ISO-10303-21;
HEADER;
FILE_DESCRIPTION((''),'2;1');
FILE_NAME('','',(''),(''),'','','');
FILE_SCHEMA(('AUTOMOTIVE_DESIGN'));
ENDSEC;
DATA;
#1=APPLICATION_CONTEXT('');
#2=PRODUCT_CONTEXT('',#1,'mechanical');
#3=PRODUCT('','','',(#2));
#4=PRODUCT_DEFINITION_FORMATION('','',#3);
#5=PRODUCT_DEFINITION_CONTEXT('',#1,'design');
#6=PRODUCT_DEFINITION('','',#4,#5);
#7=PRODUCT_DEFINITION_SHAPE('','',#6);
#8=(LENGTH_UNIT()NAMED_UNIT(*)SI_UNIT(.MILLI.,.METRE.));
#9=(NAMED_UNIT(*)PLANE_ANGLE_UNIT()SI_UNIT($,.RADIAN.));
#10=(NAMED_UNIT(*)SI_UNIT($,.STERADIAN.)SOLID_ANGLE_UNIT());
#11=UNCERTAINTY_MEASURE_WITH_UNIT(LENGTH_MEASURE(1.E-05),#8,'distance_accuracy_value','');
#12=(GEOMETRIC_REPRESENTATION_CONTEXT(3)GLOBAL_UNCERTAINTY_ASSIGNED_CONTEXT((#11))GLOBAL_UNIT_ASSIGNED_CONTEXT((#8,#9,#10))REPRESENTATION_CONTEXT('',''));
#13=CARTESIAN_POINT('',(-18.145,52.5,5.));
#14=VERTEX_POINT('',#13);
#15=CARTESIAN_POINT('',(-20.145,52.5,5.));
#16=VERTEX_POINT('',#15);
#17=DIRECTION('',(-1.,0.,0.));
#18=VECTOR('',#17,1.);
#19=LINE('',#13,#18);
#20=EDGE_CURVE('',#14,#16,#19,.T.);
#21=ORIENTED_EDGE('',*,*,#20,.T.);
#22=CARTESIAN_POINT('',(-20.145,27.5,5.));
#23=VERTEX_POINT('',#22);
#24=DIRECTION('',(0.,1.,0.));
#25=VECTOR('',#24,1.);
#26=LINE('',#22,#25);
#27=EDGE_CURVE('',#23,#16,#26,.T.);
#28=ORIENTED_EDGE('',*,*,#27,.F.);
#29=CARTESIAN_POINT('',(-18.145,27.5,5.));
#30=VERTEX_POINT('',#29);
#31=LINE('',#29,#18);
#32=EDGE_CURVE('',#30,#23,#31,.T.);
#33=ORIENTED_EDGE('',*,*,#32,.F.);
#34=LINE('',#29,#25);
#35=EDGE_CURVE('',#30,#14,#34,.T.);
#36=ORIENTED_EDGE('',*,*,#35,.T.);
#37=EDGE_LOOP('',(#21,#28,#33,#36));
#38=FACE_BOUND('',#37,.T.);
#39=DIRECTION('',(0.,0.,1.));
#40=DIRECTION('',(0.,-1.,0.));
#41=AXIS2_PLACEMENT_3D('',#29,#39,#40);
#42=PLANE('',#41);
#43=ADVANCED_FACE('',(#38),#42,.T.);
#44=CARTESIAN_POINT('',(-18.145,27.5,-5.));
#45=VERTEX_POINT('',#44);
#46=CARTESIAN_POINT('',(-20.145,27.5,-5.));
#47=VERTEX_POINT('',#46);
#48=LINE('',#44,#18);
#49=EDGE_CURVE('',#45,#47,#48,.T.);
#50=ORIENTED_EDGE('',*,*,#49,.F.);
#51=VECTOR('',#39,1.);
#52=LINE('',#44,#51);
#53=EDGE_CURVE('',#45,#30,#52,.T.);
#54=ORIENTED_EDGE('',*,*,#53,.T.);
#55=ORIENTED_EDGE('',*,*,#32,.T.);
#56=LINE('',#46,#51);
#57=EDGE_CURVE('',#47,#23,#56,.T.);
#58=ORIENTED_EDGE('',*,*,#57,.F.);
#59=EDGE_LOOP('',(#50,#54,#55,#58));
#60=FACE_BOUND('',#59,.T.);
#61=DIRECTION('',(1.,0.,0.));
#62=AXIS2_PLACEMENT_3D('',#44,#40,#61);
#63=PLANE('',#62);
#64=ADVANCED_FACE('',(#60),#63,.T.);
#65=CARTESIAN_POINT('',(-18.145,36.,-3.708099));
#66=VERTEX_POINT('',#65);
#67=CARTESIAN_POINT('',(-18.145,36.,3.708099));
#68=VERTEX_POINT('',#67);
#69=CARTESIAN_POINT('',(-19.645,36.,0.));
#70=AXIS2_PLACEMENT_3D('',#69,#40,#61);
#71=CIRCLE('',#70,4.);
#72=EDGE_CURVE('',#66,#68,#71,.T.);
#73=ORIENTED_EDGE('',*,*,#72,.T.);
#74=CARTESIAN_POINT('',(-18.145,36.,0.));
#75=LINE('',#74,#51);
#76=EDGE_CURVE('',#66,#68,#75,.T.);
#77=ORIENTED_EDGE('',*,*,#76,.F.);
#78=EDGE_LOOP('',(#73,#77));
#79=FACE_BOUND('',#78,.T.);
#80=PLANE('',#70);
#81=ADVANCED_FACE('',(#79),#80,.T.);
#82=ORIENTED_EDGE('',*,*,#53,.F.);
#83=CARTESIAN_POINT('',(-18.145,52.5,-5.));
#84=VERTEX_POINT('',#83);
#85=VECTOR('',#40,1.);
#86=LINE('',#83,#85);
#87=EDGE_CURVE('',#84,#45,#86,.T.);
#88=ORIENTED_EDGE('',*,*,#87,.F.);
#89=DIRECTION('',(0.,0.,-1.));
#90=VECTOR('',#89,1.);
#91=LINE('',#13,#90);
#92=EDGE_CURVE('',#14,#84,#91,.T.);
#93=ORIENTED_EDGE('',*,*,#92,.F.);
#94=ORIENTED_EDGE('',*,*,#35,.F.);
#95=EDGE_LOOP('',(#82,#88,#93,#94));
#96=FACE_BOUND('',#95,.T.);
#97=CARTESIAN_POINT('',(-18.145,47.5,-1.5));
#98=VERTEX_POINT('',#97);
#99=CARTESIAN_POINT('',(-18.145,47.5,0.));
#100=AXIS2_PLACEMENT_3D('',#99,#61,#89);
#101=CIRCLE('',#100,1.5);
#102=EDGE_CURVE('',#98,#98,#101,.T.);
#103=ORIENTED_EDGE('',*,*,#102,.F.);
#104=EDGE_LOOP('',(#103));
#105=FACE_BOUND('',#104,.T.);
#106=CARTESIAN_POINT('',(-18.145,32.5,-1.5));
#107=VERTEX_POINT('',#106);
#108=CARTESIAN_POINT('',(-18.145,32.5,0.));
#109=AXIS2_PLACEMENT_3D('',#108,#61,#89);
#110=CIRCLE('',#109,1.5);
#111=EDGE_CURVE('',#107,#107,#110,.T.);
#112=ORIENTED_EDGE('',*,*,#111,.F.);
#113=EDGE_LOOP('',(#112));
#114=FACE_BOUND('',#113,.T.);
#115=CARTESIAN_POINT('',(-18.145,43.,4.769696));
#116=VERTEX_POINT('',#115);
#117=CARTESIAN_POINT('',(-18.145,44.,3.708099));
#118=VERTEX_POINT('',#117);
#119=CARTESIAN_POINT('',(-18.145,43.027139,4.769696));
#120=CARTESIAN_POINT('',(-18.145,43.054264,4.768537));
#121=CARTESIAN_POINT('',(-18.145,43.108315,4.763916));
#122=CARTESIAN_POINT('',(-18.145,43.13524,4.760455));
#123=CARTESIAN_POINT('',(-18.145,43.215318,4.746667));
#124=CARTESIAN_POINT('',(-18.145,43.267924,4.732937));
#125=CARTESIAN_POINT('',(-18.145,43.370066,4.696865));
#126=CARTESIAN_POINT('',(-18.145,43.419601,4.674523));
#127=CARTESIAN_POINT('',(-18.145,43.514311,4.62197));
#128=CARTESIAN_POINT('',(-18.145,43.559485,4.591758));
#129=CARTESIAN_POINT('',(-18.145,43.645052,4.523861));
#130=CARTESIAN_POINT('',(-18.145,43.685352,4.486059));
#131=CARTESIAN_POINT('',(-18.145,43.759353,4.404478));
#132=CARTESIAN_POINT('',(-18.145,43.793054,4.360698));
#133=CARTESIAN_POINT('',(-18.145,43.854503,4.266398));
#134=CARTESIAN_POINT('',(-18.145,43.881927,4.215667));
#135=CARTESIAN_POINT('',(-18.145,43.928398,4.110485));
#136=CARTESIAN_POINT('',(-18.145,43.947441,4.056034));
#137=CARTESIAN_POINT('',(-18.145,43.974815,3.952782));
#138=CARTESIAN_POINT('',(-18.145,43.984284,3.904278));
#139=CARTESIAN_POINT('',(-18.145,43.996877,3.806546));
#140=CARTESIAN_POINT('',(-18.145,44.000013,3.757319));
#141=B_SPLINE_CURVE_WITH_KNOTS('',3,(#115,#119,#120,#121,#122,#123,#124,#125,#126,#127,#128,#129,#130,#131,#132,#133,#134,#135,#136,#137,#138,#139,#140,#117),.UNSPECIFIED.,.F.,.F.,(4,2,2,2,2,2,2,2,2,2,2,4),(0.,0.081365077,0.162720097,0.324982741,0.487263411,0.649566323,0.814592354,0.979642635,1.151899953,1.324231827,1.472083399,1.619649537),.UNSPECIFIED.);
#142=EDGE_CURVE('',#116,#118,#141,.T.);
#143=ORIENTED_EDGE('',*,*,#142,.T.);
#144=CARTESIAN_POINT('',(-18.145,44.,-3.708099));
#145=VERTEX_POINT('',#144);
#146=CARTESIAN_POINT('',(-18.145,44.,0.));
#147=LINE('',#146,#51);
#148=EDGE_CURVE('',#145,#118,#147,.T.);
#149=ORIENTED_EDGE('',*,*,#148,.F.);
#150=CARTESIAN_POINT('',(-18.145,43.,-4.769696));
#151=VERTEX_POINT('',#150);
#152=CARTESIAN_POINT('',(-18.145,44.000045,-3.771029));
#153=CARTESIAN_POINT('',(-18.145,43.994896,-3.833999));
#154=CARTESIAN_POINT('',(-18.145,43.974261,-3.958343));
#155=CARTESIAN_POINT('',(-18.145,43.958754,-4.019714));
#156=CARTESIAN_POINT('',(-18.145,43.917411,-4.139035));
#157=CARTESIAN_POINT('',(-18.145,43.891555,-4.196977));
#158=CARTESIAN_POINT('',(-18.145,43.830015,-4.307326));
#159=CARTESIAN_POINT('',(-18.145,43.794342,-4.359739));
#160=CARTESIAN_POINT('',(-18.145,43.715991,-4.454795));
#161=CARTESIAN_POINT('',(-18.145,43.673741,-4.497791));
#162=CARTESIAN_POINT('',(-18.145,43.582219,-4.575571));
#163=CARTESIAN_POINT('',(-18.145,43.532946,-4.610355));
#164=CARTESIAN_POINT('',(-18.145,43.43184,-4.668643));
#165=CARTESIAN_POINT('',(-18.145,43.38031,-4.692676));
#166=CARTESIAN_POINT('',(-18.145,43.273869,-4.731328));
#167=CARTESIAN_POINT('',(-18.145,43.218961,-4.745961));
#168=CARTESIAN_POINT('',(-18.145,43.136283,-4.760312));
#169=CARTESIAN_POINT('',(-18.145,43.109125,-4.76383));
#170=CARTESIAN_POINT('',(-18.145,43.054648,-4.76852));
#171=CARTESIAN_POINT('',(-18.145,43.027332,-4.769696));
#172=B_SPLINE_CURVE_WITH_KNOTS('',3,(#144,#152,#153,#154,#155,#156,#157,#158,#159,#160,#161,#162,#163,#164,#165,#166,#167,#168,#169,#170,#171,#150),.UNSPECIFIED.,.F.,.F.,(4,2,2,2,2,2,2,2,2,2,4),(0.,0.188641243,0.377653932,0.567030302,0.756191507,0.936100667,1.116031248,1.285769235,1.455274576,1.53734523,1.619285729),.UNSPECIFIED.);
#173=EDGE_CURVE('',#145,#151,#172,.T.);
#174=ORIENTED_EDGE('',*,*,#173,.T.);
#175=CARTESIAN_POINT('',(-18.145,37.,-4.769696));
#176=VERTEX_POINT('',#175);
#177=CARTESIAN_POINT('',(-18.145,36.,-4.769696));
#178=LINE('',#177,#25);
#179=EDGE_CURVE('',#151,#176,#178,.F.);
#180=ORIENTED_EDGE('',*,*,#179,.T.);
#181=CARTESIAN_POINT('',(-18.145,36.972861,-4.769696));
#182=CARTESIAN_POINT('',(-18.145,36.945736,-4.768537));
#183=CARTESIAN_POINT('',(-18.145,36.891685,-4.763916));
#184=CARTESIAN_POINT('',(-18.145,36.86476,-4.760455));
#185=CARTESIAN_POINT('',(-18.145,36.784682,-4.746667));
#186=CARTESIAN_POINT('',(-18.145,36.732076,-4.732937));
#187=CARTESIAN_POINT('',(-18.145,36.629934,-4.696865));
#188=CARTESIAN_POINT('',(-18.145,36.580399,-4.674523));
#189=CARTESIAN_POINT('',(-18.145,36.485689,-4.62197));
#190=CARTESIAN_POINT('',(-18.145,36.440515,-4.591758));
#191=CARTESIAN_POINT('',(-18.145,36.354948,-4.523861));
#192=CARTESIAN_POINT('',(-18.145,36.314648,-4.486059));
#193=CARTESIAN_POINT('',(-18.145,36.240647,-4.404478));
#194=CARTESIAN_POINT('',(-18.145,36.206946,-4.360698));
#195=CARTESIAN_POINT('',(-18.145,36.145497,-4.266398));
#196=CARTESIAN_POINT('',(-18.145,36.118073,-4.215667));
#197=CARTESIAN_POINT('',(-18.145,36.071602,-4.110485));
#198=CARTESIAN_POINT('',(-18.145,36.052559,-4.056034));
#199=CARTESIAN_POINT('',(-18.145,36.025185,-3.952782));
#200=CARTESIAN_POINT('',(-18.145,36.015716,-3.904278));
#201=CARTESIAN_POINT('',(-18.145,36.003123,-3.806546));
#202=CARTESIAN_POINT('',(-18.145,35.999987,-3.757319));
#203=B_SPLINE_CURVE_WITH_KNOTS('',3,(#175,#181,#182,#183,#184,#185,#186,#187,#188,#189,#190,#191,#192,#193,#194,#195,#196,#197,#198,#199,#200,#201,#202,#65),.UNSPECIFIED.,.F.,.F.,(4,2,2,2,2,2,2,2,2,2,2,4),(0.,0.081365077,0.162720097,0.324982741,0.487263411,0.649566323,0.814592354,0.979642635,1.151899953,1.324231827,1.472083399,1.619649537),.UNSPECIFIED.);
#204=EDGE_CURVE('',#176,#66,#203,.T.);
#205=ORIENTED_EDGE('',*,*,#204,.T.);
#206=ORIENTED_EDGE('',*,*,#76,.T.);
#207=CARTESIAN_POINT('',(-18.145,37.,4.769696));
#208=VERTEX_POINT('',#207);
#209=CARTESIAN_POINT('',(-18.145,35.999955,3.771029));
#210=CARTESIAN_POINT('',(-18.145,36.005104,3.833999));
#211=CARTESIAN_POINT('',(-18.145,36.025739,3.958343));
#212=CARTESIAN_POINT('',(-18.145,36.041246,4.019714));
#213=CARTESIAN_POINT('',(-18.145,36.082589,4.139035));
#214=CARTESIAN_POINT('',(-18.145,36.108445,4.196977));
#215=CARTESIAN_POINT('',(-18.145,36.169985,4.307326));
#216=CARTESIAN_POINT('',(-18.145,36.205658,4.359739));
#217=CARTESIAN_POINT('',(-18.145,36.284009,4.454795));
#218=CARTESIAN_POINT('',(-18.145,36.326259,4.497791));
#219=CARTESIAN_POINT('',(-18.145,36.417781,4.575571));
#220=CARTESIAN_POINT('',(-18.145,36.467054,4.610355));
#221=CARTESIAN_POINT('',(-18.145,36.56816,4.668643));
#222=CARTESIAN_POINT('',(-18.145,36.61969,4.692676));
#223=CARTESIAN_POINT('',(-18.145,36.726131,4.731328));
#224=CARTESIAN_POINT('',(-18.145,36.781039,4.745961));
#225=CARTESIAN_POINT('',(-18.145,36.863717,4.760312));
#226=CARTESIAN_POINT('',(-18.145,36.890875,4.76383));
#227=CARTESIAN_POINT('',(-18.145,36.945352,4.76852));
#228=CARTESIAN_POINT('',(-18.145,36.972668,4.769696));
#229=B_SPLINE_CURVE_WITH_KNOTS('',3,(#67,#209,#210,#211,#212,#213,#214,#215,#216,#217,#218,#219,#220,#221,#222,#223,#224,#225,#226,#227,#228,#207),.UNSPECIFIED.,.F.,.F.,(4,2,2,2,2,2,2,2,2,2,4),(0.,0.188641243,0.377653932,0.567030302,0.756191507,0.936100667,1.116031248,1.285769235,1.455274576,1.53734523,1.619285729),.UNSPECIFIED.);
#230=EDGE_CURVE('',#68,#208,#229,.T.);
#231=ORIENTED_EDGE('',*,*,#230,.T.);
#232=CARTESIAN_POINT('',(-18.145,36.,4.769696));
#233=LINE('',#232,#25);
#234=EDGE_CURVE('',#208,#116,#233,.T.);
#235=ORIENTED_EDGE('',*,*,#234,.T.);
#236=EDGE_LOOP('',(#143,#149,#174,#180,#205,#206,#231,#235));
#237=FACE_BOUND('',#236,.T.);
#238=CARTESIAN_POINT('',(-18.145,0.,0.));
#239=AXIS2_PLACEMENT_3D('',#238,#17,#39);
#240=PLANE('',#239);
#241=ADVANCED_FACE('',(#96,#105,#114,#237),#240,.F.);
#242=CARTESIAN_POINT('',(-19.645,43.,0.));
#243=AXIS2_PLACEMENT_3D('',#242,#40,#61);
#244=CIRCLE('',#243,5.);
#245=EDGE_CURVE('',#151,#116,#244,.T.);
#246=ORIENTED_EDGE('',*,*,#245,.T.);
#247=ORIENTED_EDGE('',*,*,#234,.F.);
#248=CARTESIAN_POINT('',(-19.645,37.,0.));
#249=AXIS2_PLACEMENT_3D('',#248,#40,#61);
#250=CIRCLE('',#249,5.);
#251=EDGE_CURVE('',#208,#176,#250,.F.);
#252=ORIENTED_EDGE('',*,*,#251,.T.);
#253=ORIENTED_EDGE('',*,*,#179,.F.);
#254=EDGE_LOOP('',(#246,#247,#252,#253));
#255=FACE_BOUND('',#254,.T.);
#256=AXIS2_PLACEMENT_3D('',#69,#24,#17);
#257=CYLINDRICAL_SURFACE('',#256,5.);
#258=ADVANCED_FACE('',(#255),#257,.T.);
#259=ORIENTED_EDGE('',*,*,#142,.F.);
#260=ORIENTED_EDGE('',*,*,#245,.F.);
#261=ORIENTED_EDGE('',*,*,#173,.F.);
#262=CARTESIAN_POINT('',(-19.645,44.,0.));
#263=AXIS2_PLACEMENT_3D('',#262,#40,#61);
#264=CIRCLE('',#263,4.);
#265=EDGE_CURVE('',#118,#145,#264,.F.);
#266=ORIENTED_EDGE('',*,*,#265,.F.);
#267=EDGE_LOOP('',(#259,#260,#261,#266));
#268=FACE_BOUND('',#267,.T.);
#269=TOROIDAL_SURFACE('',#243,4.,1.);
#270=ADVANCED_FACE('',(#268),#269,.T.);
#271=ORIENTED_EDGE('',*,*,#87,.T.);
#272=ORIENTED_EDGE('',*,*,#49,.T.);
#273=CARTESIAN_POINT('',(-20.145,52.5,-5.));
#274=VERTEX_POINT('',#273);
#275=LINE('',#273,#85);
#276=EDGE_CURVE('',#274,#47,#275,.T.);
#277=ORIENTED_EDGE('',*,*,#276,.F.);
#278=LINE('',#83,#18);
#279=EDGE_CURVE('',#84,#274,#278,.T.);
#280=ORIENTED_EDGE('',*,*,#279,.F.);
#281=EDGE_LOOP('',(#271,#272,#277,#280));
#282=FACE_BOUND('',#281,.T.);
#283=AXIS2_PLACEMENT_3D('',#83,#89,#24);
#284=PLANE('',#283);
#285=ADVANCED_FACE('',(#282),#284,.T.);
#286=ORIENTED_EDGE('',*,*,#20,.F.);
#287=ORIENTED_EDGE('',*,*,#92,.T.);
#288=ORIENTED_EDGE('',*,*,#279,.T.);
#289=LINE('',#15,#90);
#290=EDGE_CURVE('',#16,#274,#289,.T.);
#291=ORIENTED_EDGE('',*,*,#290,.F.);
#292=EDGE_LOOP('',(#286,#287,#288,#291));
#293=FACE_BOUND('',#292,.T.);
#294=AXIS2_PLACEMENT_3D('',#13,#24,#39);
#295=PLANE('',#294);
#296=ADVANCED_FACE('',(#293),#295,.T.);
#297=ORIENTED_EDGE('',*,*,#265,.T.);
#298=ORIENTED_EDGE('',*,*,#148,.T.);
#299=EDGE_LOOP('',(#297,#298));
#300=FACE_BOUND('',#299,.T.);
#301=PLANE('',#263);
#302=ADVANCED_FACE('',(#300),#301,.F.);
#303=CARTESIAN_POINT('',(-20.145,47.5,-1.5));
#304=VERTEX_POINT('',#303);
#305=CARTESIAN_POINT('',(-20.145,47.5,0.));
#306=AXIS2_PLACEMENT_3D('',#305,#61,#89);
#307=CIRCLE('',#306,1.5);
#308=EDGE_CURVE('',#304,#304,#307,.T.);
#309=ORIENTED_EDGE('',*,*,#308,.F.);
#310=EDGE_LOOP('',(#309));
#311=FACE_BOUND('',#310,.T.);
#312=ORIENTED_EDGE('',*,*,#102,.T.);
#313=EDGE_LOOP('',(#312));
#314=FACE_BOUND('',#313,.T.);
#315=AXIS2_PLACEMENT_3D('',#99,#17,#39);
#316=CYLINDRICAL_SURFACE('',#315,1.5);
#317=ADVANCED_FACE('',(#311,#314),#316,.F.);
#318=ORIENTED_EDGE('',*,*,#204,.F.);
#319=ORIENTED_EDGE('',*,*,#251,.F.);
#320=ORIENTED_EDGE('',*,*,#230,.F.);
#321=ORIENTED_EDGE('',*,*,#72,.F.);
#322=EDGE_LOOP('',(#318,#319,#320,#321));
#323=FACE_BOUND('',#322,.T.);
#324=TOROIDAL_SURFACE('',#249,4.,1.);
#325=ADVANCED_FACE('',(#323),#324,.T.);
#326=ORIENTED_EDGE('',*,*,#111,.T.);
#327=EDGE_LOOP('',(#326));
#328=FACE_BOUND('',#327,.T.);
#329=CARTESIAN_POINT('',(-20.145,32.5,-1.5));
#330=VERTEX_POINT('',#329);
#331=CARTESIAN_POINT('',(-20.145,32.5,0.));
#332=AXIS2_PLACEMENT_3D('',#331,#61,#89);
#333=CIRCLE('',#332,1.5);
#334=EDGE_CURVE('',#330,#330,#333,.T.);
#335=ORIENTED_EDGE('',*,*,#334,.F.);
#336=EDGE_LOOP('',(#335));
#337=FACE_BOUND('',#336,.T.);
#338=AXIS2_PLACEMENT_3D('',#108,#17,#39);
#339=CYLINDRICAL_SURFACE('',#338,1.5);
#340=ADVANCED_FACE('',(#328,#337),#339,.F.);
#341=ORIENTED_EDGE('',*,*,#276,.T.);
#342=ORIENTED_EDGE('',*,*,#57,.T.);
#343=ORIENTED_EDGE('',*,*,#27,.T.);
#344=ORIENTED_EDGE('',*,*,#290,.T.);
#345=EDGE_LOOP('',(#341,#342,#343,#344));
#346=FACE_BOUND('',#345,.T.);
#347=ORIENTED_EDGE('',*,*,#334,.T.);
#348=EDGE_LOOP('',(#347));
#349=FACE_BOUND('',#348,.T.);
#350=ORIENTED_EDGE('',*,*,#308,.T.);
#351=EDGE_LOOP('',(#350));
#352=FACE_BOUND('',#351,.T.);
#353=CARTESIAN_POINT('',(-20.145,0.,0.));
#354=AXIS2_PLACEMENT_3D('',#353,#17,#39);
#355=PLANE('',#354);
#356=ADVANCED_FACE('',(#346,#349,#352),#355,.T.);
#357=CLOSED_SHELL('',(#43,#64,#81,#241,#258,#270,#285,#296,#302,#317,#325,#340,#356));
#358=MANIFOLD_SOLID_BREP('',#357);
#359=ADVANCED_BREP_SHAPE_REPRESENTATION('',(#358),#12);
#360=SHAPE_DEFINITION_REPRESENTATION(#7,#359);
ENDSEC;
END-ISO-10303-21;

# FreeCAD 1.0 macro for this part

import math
import FreeCAD as App
import Part
import Sketcher
from FreeCAD import Vector


def edges_at(feature, points):
    """Names of the edges that pass closest to the given points."""
    edges = feature.Shape.Edges
    near = lambda p: min(range(len(edges)), key=lambda i: edges[i].distToShape(Part.Vertex(*p))[0])
    return sorted({f"Edge{near(p) + 1}" for p in points})

doc = App.newDocument("Part")
body = doc.addObject("PartDesign::Body", "Body")

# Sketch on YZ plane
sketch1 = body.newObject("Sketcher::SketchObject", "Sketch")
sketch1.AttachmentSupport = (doc.getObject("YZ_Plane"), [""])
sketch1.MapMode = "FlatFace"
sketch1.AttachmentOffset = App.Placement(Vector(0, 0, -20.145), App.Rotation())
sketch1.addGeometry([
    Part.LineSegment(Vector(52.5, 5, 0), Vector(27.5, 5, 0)),  # 0
    Part.LineSegment(Vector(27.5, 5, 0), Vector(27.5, -5, 0)),  # 1
    Part.LineSegment(Vector(27.5, -5, 0), Vector(52.5, -5, 0)),  # 2
    Part.LineSegment(Vector(52.5, -5, 0), Vector(52.5, 5, 0)),  # 3
    Part.Circle(Vector(32.5, 0, 0), Vector(0, 0, 1), 1.5),  # 4
    Part.Circle(Vector(47.5, 0, 0), Vector(0, 0, 1), 1.5),  # 5
], False)
sketch1.addConstraint([
    Sketcher.Constraint("Coincident", 0, 2, 1, 1),
    Sketcher.Constraint("Coincident", 1, 2, 2, 1),
    Sketcher.Constraint("Coincident", 2, 2, 3, 1),
    Sketcher.Constraint("Coincident", 3, 2, 0, 1),
    Sketcher.Constraint("Horizontal", 0),
    Sketcher.Constraint("Vertical", 1),
    Sketcher.Constraint("Horizontal", 2),
    Sketcher.Constraint("Vertical", 3),
    Sketcher.Constraint("Equal", 4, 5),
    Sketcher.Constraint("PointOnObject", 4, 3, -1),
    Sketcher.Constraint("PointOnObject", 5, 3, -1),
    Sketcher.Constraint("Diameter", 4, 3.0),
    Sketcher.Constraint("DistanceX", 0, 2, 0, 1, 25.0),
    Sketcher.Constraint("DistanceY", 1, 2, 1, 1, 10.0),
    Sketcher.Constraint("DistanceY", -1, 1, 0, 2, 5.0),
    Sketcher.Constraint("DistanceX", 4, 3, 5, 3, 15.0),
    Sketcher.Constraint("DistanceX", 0, 2, 4, 3, 5.0),
    Sketcher.Constraint("DistanceX", -1, 1, 4, 3, 32.5),
])
pad1 = body.newObject("PartDesign::Pad", "Pad")
pad1.Profile = sketch1
pad1.Length = 2

# Sketch on XZ plane
sketch2 = body.newObject("Sketcher::SketchObject", "Sketch001")
sketch2.AttachmentSupport = (doc.getObject("XZ_Plane"), [""])
sketch2.MapMode = "FlatFace"
sketch2.AttachmentOffset = App.Placement(Vector(0, 0, -44), App.Rotation())
sketch2.addGeometry([
    Part.LineSegment(Vector(-20, -5, 0), Vector(-20, 5, 0)),
    Part.ArcOfCircle(Part.Circle(Vector(-20, 0, 0), Vector(0, 0, 1), 5), math.radians(-90), math.radians(90)),
], False)
sketch2.addConstraint([
    Sketcher.Constraint("Coincident", 0, 1, 1, 1),
    Sketcher.Constraint("Coincident", 1, 2, 0, 2),
    Sketcher.Constraint("Vertical", 0),
    Sketcher.Constraint("PointOnObject", 1, 3, -1),
    Sketcher.Constraint("Vertical", 1, 3, 0, 1),
    Sketcher.Constraint("Radius", 1, 5.0),
    Sketcher.Constraint("DistanceX", 1, 3, -1, 1, 19.645),
])
pad2 = body.newObject("PartDesign::Pad", "Pad001")
pad2.Profile = sketch2
pad2.Length = 8
doc.recompute()

fillet = body.newObject("PartDesign::Fillet", "Fillet")
fillet.Base = (pad2, edges_at(pad2, [(-14.645, 36, 0), (-14.645, 44, 0)]))
fillet.Radius = 1

doc.recompute()
